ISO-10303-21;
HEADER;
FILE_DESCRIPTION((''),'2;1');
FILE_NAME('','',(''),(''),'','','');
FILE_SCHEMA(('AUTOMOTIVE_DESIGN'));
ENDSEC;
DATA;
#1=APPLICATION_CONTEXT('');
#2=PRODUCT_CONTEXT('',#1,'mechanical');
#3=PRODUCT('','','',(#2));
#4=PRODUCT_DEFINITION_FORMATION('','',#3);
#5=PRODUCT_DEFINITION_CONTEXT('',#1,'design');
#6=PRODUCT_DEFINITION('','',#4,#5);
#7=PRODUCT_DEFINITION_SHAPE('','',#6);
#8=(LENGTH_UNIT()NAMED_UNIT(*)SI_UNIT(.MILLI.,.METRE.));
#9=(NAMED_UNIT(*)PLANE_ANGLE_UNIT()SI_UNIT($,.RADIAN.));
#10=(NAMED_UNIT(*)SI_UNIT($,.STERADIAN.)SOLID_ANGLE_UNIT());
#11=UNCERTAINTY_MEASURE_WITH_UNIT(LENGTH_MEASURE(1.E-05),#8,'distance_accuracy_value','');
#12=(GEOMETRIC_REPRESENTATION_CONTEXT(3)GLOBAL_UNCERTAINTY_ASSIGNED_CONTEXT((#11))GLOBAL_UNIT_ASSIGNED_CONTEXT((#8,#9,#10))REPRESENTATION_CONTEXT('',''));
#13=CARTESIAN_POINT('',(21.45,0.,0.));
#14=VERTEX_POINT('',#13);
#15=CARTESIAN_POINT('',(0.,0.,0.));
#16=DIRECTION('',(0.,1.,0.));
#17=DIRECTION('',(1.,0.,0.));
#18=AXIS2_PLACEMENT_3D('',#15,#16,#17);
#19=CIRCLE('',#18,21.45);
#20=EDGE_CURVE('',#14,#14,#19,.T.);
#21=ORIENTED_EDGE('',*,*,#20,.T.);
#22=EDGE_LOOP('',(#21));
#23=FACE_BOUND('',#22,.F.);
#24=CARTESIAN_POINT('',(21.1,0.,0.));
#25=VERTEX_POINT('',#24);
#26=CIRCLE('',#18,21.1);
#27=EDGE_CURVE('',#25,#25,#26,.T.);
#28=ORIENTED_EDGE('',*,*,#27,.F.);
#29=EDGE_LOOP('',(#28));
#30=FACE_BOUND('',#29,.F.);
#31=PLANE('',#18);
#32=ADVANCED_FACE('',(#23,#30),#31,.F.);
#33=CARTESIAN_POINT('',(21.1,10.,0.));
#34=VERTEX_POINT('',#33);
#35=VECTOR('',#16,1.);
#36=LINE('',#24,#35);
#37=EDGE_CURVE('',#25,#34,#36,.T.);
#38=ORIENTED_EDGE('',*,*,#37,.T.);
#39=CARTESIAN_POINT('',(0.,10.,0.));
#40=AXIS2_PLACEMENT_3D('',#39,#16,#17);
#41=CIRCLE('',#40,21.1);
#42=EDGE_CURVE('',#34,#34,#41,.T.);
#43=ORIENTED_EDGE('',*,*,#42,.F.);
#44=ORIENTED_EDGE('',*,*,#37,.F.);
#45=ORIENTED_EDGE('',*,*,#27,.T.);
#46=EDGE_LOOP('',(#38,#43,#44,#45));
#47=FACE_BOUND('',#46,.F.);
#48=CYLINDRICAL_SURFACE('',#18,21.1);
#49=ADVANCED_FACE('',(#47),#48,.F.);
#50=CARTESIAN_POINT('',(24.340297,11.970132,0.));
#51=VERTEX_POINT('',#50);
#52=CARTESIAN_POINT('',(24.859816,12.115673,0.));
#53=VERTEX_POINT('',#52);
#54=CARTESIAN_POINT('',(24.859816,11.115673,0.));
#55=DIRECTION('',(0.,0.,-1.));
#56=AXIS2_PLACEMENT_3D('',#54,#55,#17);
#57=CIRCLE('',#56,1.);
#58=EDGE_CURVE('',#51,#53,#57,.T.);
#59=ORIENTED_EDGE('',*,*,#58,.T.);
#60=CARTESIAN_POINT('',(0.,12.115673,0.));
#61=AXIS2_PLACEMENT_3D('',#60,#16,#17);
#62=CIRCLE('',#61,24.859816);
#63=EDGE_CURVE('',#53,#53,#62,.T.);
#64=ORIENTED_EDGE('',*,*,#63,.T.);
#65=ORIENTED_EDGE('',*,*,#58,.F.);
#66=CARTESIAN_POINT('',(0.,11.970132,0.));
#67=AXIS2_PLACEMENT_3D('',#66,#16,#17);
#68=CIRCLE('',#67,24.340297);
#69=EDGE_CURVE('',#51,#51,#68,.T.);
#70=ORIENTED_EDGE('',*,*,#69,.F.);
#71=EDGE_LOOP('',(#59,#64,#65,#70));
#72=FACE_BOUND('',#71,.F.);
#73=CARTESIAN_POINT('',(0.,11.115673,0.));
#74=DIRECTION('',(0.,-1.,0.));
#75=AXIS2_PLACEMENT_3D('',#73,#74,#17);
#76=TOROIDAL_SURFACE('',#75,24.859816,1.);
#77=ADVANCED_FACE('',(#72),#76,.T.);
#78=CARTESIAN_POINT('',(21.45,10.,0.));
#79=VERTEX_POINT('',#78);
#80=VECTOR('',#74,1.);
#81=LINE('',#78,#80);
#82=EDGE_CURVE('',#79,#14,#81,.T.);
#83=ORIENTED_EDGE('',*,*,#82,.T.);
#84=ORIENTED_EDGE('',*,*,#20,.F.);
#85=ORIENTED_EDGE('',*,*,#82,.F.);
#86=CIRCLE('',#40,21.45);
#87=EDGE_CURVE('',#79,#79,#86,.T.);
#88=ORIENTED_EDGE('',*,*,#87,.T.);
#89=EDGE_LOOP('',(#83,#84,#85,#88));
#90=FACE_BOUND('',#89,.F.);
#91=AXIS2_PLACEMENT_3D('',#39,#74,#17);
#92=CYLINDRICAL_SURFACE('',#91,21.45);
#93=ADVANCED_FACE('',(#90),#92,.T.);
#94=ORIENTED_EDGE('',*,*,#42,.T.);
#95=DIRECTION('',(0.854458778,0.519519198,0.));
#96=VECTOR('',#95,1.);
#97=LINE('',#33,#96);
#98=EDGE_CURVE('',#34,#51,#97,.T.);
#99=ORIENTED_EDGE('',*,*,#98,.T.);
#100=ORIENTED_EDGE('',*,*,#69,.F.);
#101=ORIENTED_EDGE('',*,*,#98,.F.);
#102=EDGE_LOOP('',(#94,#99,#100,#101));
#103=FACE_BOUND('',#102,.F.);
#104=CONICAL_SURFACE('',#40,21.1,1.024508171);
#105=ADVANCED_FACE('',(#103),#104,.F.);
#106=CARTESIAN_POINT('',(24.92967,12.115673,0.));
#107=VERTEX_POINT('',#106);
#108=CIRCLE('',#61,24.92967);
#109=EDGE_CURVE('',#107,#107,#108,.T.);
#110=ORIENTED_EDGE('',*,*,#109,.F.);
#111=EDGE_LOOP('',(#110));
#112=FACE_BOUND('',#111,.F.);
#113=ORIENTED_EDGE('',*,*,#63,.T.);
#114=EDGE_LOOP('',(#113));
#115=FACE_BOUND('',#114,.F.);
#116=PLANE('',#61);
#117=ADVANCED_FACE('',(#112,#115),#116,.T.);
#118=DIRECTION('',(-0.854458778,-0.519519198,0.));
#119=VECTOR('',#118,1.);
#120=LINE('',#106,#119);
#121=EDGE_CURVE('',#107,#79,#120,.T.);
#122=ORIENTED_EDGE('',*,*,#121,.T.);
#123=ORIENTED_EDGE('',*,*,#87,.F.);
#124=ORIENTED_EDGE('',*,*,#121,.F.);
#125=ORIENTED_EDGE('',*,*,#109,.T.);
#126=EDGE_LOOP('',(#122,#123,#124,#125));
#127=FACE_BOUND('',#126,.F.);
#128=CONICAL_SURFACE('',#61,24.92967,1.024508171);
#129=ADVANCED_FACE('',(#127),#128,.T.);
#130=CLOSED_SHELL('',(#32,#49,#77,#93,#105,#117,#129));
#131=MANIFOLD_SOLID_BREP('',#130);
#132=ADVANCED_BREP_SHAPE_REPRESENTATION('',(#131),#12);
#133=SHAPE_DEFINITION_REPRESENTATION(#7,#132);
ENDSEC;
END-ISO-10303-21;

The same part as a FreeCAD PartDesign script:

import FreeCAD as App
import Part
import Sketcher
from FreeCAD import Vector
Q = App.Units.Quantity


def edges_at(feature, points):
    """Names of the edges that pass closest to the given points."""
    edges = feature.Shape.Edges
    near = lambda p: min(range(len(edges)), key=lambda i: edges[i].distToShape(Part.Vertex(*p))[0])
    return sorted({f"Edge{near(p) + 1}" for p in points})

doc = App.newDocument("Part")
body = doc.addObject("PartDesign::Body", "Body")

sketch1 = doc.addObject("Sketcher::SketchObject", "Sketch")
body.addObject(sketch1)
sketch1.AttachmentSupport = (doc.XY_Plane, [""])
sketch1.MapMode = "FlatFace"
sketch1.addGeometry(Part.LineSegment(Vector(21.1, 10, 0), Vector(21.1, 0, 0)), False)
sketch1.addGeometry(Part.LineSegment(Vector(21.1, 0, 0), Vector(21.45, 0, 0)), False)
sketch1.addGeometry(Part.LineSegment(Vector(21.45, 0, 0), Vector(21.45, 10, 0)), False)
sketch1.addGeometry(Part.LineSegment(Vector(21.45, 10, 0), Vector(24.93, 12.12, 0)), False)
sketch1.addGeometry(Part.LineSegment(Vector(24.93, 12.12, 0), Vector(24.58, 12.12, 0)), False)
sketch1.addGeometry(Part.LineSegment(Vector(24.58, 12.12, 0), Vector(21.1, 10, 0)), False)
sketch1.addConstraint(Sketcher.Constraint("Coincident", 0, 2, 1, 1))
sketch1.addConstraint(Sketcher.Constraint("Coincident", 1, 2, 2, 1))
sketch1.addConstraint(Sketcher.Constraint("Coincident", 2, 2, 3, 1))
sketch1.addConstraint(Sketcher.Constraint("Coincident", 3, 2, 4, 1))
sketch1.addConstraint(Sketcher.Constraint("Coincident", 4, 2, 5, 1))
sketch1.addConstraint(Sketcher.Constraint("Coincident", 5, 2, 0, 1))
sketch1.addConstraint(Sketcher.Constraint("Vertical", 0))
sketch1.addConstraint(Sketcher.Constraint("Horizontal", 1))
sketch1.addConstraint(Sketcher.Constraint("Vertical", 2))
sketch1.addConstraint(Sketcher.Constraint("Horizontal", 4))
sketch1.addConstraint(Sketcher.Constraint("PointOnObject", 0, 2, -1))
sketch1.addConstraint(Sketcher.Constraint("Parallel", 3, 5))
sketch1.addConstraint(Sketcher.Constraint("Horizontal", 2, 2, 5, 2))
sketch1.addConstraint(Sketcher.Constraint("DistanceY", 0, 2, 0, 1, Q("10 mm")))
sketch1.addConstraint(Sketcher.Constraint("Angle", 3, Q("31.300006 deg")))
sketch1.addConstraint(Sketcher.Constraint("DistanceX", 1, 1, 1, 2, Q("0.35 mm")))
sketch1.addConstraint(Sketcher.Constraint("DistanceX", -1, 1, 0, 2, Q("21.1 mm")))
sketch1.addConstraint(Sketcher.Constraint("DistanceX", -1, 1, 3, 2, Q("24.92967 mm")))
revolution = doc.addObject("PartDesign::Revolution", "Revolution")
body.addObject(revolution)
revolution.Profile = sketch1
revolution.ReferenceAxis = (sketch1, ["V_Axis"])
revolution.Angle = 360
doc.recompute()

fillet = doc.addObject("PartDesign::Fillet", "Fillet")
body.addObject(fillet)
fillet.Base = (revolution, edges_at(revolution, [(-24.58, 12.116, 0)]))
fillet.Radius = 1

doc.recompute()
